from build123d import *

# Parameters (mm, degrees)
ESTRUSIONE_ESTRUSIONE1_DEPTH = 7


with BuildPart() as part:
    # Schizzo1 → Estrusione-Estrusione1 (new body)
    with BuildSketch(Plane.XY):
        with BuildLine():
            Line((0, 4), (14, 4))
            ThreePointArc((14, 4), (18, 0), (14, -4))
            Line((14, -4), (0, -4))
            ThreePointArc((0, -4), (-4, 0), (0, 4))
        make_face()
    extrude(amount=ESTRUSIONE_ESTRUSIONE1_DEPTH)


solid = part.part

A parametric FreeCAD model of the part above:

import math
import FreeCAD as App
import Part
import Sketcher

V = App.Vector

doc = App.newDocument("Part")
body = doc.addObject("PartDesign::Body", "Body")

# Sketch on XY plane
sketch1 = body.newObject("Sketcher::SketchObject", "Sketch")
sketch1.AttachmentSupport = (doc.getObject("XY_Plane"), [""])
sketch1.MapMode = "FlatFace"
sketch1.addGeometry(Part.LineSegment(V(14, 4, 0), V(0, 4, 0)), False)
sketch1.addGeometry(Part.ArcOfCircle(Part.Circle(V(0, 0, 0), V(0, 0, 1), 4), math.radians(90), math.radians(270)), False)
sketch1.addGeometry(Part.LineSegment(V(0, -4, 0), V(14, -4, 0)), False)
sketch1.addGeometry(Part.ArcOfCircle(Part.Circle(V(14, 0, 0), V(0, 0, 1), 4), math.radians(-90), math.radians(90)), False)
sketch1.addConstraint(Sketcher.Constraint("Tangent", 0, 2, 1, 1))
sketch1.addConstraint(Sketcher.Constraint("Tangent", 1, 2, 2, 1))
sketch1.addConstraint(Sketcher.Constraint("Tangent", 2, 2, 3, 1))
sketch1.addConstraint(Sketcher.Constraint("Tangent", 3, 2, 0, 1))
sketch1.addConstraint(Sketcher.Constraint("Horizontal", 0))
sketch1.addConstraint(Sketcher.Constraint("Horizontal", 2))
sketch1.addConstraint(Sketcher.Constraint("Coincident", 1, 3, -1, 1))
sketch1.addConstraint(Sketcher.Constraint("Radius", 1, 4.0))
sketch1.addConstraint(Sketcher.Constraint("DistanceX", 0, 2, 0, 1, 14.0))
pad1 = body.newObject("PartDesign::Pad", "Pad")
pad1.Profile = sketch1
pad1.Length = 7

doc.recompute()
